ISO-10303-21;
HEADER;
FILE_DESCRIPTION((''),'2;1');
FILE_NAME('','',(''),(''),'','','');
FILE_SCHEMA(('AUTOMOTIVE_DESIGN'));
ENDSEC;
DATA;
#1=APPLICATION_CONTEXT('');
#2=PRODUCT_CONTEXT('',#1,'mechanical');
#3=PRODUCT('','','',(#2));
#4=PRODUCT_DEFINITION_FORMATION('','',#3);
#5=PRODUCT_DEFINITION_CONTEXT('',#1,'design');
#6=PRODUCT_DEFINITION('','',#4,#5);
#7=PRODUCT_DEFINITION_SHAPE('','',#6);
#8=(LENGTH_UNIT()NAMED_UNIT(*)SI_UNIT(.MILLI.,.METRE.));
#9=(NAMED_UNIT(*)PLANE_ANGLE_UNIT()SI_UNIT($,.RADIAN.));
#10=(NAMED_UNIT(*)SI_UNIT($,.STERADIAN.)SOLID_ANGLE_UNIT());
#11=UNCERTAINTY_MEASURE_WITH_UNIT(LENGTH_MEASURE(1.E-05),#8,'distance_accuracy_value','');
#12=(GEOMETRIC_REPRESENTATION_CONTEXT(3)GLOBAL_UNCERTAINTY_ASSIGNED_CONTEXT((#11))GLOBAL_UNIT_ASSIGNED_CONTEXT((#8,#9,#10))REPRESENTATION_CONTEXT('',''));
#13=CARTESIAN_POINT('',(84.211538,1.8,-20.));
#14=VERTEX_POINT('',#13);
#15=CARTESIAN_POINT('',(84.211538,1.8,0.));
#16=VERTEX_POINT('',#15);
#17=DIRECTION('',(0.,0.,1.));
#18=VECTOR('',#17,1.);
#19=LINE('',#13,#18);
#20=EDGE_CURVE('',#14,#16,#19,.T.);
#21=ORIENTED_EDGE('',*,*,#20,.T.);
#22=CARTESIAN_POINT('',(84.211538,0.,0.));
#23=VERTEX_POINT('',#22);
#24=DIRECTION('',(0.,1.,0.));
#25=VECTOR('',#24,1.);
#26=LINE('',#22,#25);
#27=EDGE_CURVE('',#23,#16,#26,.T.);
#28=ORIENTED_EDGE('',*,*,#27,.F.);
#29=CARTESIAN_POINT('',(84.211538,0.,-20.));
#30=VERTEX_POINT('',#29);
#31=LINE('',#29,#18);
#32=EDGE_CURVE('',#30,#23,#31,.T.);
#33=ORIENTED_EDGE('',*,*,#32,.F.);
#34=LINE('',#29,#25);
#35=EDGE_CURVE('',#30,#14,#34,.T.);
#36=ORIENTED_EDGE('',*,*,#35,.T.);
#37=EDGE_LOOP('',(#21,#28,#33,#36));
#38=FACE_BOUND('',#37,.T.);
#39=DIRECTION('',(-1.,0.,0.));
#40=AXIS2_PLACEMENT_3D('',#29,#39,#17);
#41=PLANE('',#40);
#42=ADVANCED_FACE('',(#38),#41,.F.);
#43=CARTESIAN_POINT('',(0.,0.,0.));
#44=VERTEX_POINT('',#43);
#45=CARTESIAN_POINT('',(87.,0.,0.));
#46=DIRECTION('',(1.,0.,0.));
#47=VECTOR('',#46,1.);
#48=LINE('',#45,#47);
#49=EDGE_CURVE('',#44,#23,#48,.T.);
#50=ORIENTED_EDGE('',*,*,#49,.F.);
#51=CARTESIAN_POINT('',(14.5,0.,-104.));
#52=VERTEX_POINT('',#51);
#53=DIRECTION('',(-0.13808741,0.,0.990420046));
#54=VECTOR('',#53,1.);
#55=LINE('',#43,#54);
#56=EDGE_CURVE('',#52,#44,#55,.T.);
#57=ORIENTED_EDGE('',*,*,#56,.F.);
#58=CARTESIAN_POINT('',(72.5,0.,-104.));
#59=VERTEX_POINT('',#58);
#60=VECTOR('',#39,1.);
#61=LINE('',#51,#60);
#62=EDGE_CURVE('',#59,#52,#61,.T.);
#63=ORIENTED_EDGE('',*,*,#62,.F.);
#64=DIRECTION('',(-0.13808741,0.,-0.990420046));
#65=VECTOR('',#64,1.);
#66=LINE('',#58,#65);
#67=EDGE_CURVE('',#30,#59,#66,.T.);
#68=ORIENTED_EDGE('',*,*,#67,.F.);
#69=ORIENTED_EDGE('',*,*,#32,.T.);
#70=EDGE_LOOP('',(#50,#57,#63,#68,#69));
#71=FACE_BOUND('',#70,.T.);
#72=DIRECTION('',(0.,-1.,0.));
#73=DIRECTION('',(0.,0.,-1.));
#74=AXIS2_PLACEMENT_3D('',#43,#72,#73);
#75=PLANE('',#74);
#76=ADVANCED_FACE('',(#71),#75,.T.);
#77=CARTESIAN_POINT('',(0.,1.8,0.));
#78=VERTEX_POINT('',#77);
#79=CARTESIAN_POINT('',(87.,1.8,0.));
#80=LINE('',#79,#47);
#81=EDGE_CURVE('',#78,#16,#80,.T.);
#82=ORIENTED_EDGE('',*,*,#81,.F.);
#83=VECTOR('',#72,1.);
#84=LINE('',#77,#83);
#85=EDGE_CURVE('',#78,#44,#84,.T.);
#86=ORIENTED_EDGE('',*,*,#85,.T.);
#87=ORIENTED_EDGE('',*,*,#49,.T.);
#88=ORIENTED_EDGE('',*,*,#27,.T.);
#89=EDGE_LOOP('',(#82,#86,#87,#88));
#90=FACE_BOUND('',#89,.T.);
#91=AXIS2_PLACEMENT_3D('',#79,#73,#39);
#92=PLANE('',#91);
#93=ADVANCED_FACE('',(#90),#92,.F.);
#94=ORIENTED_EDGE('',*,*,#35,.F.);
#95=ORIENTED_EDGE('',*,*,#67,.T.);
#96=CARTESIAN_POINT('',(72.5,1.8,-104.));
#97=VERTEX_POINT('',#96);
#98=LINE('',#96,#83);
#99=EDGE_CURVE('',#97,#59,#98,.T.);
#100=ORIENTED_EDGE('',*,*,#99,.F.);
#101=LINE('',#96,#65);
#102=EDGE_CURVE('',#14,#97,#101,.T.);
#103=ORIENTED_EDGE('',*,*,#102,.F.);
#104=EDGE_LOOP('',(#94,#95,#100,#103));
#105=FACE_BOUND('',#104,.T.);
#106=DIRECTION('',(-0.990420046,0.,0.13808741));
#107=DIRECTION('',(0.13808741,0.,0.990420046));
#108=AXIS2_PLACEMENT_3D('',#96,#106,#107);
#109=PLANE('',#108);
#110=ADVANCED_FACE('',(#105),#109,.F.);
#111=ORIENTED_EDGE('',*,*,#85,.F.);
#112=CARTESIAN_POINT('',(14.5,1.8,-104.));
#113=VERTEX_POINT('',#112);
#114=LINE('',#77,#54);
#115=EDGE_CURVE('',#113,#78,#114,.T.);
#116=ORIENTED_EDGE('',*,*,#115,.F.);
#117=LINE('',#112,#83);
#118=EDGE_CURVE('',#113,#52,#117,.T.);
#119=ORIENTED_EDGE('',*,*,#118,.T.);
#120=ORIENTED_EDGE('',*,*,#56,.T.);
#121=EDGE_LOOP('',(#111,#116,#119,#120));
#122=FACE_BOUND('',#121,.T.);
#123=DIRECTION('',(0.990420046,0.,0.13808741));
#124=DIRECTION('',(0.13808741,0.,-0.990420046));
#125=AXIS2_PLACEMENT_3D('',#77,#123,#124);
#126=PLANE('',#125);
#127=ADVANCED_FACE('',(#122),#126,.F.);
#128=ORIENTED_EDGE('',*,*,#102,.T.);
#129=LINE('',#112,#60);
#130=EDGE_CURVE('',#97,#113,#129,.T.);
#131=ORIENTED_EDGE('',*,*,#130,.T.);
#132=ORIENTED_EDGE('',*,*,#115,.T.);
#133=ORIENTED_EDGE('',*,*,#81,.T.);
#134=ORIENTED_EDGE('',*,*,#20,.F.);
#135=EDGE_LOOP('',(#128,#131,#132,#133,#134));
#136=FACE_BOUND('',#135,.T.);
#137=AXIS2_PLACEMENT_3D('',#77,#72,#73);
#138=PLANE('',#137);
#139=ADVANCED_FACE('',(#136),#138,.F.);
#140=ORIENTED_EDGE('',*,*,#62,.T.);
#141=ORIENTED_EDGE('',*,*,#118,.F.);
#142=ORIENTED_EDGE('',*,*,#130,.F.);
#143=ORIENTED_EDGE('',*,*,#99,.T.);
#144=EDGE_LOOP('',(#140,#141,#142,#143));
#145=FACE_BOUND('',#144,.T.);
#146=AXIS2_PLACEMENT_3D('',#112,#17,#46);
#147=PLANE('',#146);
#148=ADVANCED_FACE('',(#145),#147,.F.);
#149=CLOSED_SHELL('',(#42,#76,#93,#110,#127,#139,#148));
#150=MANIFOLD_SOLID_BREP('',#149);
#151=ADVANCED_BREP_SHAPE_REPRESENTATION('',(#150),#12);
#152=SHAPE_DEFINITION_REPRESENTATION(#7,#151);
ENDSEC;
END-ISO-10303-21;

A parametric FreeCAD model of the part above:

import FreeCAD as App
import Part
import Sketcher

V = App.Vector

doc = App.newDocument("Part")
body = doc.addObject("PartDesign::Body", "Body")

# Sketch on XZ plane
sketch1 = body.newObject("Sketcher::SketchObject", "Sketch")
sketch1.AttachmentSupport = (doc.getObject("XZ_Plane"), [""])
sketch1.MapMode = "FlatFace"
sketch1.addGeometry([
    Part.LineSegment(V(14.5, -104, 0), V(0, 0, 0)),
    Part.LineSegment(V(0, 0, 0), V(87, 0, 0)),
    Part.LineSegment(V(87, 0, 0), V(72.5, -104, 0)),
    Part.LineSegment(V(72.5, -104, 0), V(14.5, -104, 0)),
], False)
sketch1.addConstraint([
    Sketcher.Constraint("Coincident", 0, 2, 1, 1),
    Sketcher.Constraint("Coincident", 1, 2, 2, 1),
    Sketcher.Constraint("Coincident", 2, 2, 3, 1),
    Sketcher.Constraint("Coincident", 3, 2, 0, 1),
    Sketcher.Constraint("Horizontal", 1),
    Sketcher.Constraint("Horizontal", 3),
    Sketcher.Constraint("Coincident", 0, 2, -1, 1),
    Sketcher.Constraint("Equal", 0, 2),
    Sketcher.Constraint("DistanceX", 1, 1, 1, 2, 87.0),
    Sketcher.Constraint("DistanceX", 3, 2, 3, 1, 58.0),
    Sketcher.Constraint("DistanceY", 2, 2, -1, 1, 104.0),
])
pad1 = body.newObject("PartDesign::Pad", "Pad")
pad1.Profile = sketch1
pad1.Length = 1.8
pad1.Reversed = True

# Sketch on XZ plane
sketch2 = body.newObject("Sketcher::SketchObject", "Sketch001")
sketch2.AttachmentSupport = (doc.getObject("XZ_Plane"), [""])
sketch2.MapMode = "FlatFace"
sketch2.AttachmentOffset = App.Placement(V(0, 0, -1.8), App.Rotation())
sketch2.addGeometry([
    Part.LineSegment(V(84.211538, -20, 0), V(84.211538, 0, 0)),
    Part.LineSegment(V(84.211538, 0, 0), V(87, 0, 0)),
    Part.LineSegment(V(87, 0, 0), V(87, -20, 0)),
    Part.LineSegment(V(87, -20, 0), V(84.211538, -20, 0)),
], False)
sketch2.addConstraint([
    Sketcher.Constraint("Coincident", 0, 2, 1, 1),
    Sketcher.Constraint("Coincident", 1, 2, 2, 1),
    Sketcher.Constraint("Coincident", 2, 2, 3, 1),
    Sketcher.Constraint("Coincident", 3, 2, 0, 1),
    Sketcher.Constraint("Vertical", 0),
    Sketcher.Constraint("Horizontal", 1),
    Sketcher.Constraint("Vertical", 2),
    Sketcher.Constraint("Horizontal", 3),
    Sketcher.Constraint("PointOnObject", 0, 2, -1),
    Sketcher.Constraint("DistanceY", 0, 1, 0, 2, 20.0),
    Sketcher.Constraint("DistanceX", -1, 1, 1, 2, 87.0),
    Sketcher.Constraint("DistanceX", 1, 1, 1, 2, 2.788462),
])
pocket1 = body.newObject("PartDesign::Pocket", "Pocket")
pocket1.Profile = sketch2
pocket1.Type = "ThroughAll"
pocket1.Reversed = True

doc.recompute()
